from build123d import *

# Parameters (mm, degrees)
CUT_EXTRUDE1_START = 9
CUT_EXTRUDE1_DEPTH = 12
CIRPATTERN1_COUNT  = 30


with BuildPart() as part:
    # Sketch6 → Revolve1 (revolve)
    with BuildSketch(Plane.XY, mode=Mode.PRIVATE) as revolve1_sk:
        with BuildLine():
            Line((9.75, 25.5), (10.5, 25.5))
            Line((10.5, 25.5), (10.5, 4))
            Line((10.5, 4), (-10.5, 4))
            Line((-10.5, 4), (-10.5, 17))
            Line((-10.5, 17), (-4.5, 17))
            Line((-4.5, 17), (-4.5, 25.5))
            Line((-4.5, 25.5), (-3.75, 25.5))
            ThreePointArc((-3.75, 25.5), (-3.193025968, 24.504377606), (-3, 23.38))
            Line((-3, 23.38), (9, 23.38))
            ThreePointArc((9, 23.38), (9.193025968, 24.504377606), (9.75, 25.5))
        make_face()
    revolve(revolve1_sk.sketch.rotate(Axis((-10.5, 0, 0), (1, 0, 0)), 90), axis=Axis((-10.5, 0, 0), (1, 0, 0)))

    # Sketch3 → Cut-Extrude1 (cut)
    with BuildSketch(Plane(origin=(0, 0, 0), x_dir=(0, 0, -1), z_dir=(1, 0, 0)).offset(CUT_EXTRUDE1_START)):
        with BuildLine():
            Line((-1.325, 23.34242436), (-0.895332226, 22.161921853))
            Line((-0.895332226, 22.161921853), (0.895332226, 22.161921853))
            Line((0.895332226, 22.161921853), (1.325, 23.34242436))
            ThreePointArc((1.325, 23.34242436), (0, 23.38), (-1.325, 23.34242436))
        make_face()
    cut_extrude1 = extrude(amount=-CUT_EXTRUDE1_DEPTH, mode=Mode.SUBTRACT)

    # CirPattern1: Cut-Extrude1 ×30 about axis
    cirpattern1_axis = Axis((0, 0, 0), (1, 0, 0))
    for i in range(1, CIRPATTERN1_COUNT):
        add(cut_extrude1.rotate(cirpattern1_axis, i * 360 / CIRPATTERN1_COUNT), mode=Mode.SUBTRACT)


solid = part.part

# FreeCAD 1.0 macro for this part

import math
import FreeCAD as App
import Part
import Sketcher

V = App.Vector
Q = App.Units.Quantity

doc = App.newDocument("Part")
params = doc.addObject("Spreadsheet::Sheet", "Params")
for row, (alias, value) in enumerate([
    ("sketch1_width", "12 mm"),
    ("sketch1_width2", "6 mm"),
    ("sketch1_width3", "21 mm"),
    ("sketch1_height", "13 mm"),
    ("sketch1_height2", "8.5 mm"),
    ("revolution_angle", "360 deg"),
    ("sketch2_radius", "23.38 mm"),
    ("pocket1_length", "12 mm"),
], start=1):
    params.set(f"A{row}", alias)
    params.set(f"B{row}", "=" + value)
    params.setAlias(f"B{row}", alias)

body = doc.addObject("PartDesign::Body", "Body")

sketch1 = doc.addObject("Sketcher::SketchObject", "Sketch")
body.addObject(sketch1)
sketch1.AttachmentSupport = (doc.XY_Plane, [""])
sketch1.MapMode = "FlatFace"
sketch1.addGeometry([
    Part.LineSegment(V(10.5, 25.5, 0), V(9.8, 25.5, 0)),
    Part.ArcOfCircle(Part.Circle(V(12.4, 23.4, 0), V(0, 0, 1), 3.4), math.radians(141), math.radians(180)),
    Part.LineSegment(V(9, 23.4, 0), V(-3, 23.4, 0)),
    Part.ArcOfCircle(Part.Circle(V(-6.4, 23.4, 0), V(0, 0, 1), 3.4), math.radians(0), math.radians(39)),
    Part.LineSegment(V(-3.8, 25.5, 0), V(-4.5, 25.5, 0)),
    Part.LineSegment(V(-4.5, 25.5, 0), V(-4.5, 17, 0)),
    Part.LineSegment(V(-4.5, 17, 0), V(-10.5, 17, 0)),
    Part.LineSegment(V(-10.5, 17, 0), V(-10.5, 4, 0)),
    Part.LineSegment(V(-10.5, 4, 0), V(10.5, 4, 0)),
    Part.LineSegment(V(10.5, 4, 0), V(10.5, 25.5, 0)),
], False)
sketch1.addConstraint([
    Sketcher.Constraint("Coincident", 0, 2, 1, 1),
    Sketcher.Constraint("Coincident", 1, 2, 2, 1),
    Sketcher.Constraint("Coincident", 2, 2, 3, 1),
    Sketcher.Constraint("Coincident", 3, 2, 4, 1),
    Sketcher.Constraint("Coincident", 4, 2, 5, 1),
    Sketcher.Constraint("Coincident", 5, 2, 6, 1),
    Sketcher.Constraint("Coincident", 6, 2, 7, 1),
    Sketcher.Constraint("Coincident", 7, 2, 8, 1),
    Sketcher.Constraint("Coincident", 8, 2, 9, 1),
    Sketcher.Constraint("Coincident", 9, 2, 0, 1),
    Sketcher.Constraint("Horizontal", 0),
    Sketcher.Constraint("Horizontal", 2),
    Sketcher.Constraint("Horizontal", 4),
    Sketcher.Constraint("Vertical", 5),
    Sketcher.Constraint("Horizontal", 6),
    Sketcher.Constraint("Vertical", 7),
    Sketcher.Constraint("Horizontal", 8),
    Sketcher.Constraint("Vertical", 9),
    Sketcher.Constraint("Equal", 1, 3),
    Sketcher.Constraint("Horizontal", 1, 3, 3, 3),
    Sketcher.Constraint("Horizontal", 3, 3, 1, 2),
    Sketcher.Constraint("Horizontal", 0, 2, 3, 2),
    Sketcher.Constraint("Equal", 0, 4),
    Sketcher.Constraint("DistanceX", 2, 2, 2, 1, Q("12 mm")),
    Sketcher.Constraint("DistanceX", 6, 2, 6, 1, Q("6 mm")),
    Sketcher.Constraint("DistanceX", 8, 1, 8, 2, Q("21 mm")),
    Sketcher.Constraint("DistanceY", 7, 2, 7, 1, Q("13 mm")),
    Sketcher.Constraint("DistanceY", 5, 2, 5, 1, Q("8.5 mm")),
    Sketcher.Constraint("DistanceX", -1, 1, 1, 2, Q("9 mm")),
    Sketcher.Constraint("DistanceY", -1, 1, 5, 2, Q("17 mm")),
    Sketcher.Constraint("DistanceX", 0, 2, 0, 1, Q("0.75 mm")),
    Sketcher.Constraint("DistanceY", -1, 1, 1, 3, Q("23.38 mm")),
])
sketch1.setExpression("Constraints[23]", "Params.sketch1_width")
sketch1.setExpression("Constraints[24]", "Params.sketch1_width2")
sketch1.setExpression("Constraints[25]", "Params.sketch1_width3")
sketch1.setExpression("Constraints[26]", "Params.sketch1_height")
sketch1.setExpression("Constraints[27]", "Params.sketch1_height2")
revolution = doc.addObject("PartDesign::Revolution", "Revolution")
body.addObject(revolution)
revolution.Profile = sketch1
revolution.ReferenceAxis = (sketch1, ["H_Axis"])
revolution.setExpression("Angle", "Params.revolution_angle")

sketch2 = doc.addObject("Sketcher::SketchObject", "Sketch001")
body.addObject(sketch2)
sketch2.AttachmentSupport = (doc.YZ_Plane, [""])
sketch2.MapMode = "FlatFace"
sketch2.AttachmentOffset = App.Placement(V(0, 0, 9), App.Rotation())
sketch2.addGeometry([
    Part.LineSegment(V(23.3, 1.3, 0), V(22.2, 0.9, 0)),
    Part.LineSegment(V(22.2, 0.9, 0), V(22.2, -0.9, 0)),
    Part.LineSegment(V(22.2, -0.9, 0), V(23.3, -1.3, 0)),
    Part.ArcOfCircle(Part.Circle(V(0, 0, 0), V(0, 0, 1), 23.4), math.radians(-3.25), math.radians(3.25)),
], False)
sketch2.addConstraint([
    Sketcher.Constraint("Coincident", 0, 2, 1, 1),
    Sketcher.Constraint("Coincident", 1, 2, 2, 1),
    Sketcher.Constraint("Coincident", 2, 2, 3, 1),
    Sketcher.Constraint("Coincident", 3, 2, 0, 1),
    Sketcher.Constraint("Vertical", 1),
    Sketcher.Constraint("Coincident", 3, 3, -1, 1),
    Sketcher.Constraint("Vertical", 2, 2, 3, 2),
    Sketcher.Constraint("Equal", 0, 2),
    Sketcher.Constraint("Angle", 0, Q("-160 deg")),
    Sketcher.Constraint("Radius", 3, Q("23.38 mm")),
    Sketcher.Constraint("DistanceY", 2, 2, 3, 2, Q("2.65 mm")),
    Sketcher.Constraint("DistanceY", 1, 2, 1, 1, Q("1.790664 mm")),
])
sketch2.setExpression("Constraints[9]", "Params.sketch2_radius")
pocket1 = doc.addObject("PartDesign::Pocket", "Pocket")
body.addObject(pocket1)
pocket1.Profile = sketch2
pocket1.setExpression("Length", "Params.pocket1_length")
doc.recompute()

polarpattern = doc.addObject("PartDesign::PolarPattern", "PolarPattern")
body.addObject(polarpattern)
polarpattern.Originals = [pocket1]
polarpattern.Axis = (doc.X_Axis, [""])
polarpattern.Angle = 360
polarpattern.Occurrences = 30
body.Tip = polarpattern

doc.recompute()
